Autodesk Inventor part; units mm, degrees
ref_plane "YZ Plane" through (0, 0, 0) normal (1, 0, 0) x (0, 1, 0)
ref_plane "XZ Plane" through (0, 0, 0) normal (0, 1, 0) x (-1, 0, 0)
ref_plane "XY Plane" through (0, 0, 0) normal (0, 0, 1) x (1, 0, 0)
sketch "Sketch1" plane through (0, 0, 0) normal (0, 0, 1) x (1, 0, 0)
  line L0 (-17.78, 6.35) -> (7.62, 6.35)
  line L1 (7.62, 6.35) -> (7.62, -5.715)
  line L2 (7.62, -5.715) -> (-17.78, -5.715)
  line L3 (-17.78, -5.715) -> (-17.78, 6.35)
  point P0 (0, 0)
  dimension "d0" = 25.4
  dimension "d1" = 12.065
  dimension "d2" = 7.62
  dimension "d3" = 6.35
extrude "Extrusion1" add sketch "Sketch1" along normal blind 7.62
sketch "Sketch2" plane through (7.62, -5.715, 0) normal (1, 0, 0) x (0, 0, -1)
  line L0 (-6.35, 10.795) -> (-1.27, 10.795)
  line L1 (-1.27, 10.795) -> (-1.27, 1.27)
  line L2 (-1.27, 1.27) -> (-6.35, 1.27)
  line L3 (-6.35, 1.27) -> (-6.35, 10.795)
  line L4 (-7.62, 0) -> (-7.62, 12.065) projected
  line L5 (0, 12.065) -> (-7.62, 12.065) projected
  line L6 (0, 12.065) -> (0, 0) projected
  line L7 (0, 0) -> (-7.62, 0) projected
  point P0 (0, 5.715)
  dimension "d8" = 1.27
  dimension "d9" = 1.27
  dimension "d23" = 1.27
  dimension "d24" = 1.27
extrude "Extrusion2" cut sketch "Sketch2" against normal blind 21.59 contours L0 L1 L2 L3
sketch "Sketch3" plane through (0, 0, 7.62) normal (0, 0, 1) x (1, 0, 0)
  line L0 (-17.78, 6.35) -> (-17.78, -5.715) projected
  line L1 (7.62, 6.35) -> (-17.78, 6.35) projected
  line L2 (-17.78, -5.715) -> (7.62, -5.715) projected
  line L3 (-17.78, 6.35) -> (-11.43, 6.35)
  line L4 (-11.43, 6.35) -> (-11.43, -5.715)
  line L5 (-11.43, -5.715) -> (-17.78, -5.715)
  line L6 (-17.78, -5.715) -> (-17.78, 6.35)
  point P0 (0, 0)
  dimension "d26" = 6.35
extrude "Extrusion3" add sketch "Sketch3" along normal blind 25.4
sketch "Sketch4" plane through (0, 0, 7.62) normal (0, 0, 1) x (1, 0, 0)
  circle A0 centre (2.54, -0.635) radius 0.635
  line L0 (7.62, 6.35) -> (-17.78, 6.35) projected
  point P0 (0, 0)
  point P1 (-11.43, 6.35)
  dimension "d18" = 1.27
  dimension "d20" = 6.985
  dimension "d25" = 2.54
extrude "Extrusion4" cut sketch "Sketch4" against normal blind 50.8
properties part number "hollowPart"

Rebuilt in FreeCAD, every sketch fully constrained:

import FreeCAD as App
import Part
import Sketcher
Q = App.Units.Quantity


def add_polygon(sketch, points):
    """Adds a closed chain of lines whose ends are joined by coincident constraints."""
    first, n = sketch.GeometryCount, len(points)
    for a, b in zip(points, points[1:] + points[:1]):
        sketch.addGeometry(Part.LineSegment(App.Vector(*a, 0), App.Vector(*b, 0)), False)
    for i in range(n):
        sketch.addConstraint(Sketcher.Constraint("Coincident", first + i, 2, first + (i + 1) % n, 1))

doc = App.newDocument("Part")
params = doc.addObject("Spreadsheet::Sheet", "Params")
for row, (alias, value) in enumerate([
    ("sketch1_width", "1 in"),
    ("sketch1_height", "0.475 in"),
    ("pad1_length", "0.3 in"),
    ("sketch2_height", "0.2 in"),
    ("sketch2_width", "0.375 in"),
    ("pocket1_length", "0.85 in"),
    ("sketch3_width", "0.25 in"),
    ("sketch3_height", "0.475 in"),
    ("pad2_length", "1 in"),
    ("sketch4_diameter", "0.05 in"),
    ("pocket2_length", "2 in"),
], start=1):
    params.set(f"A{row}", alias)
    params.set(f"B{row}", "=" + value)
    params.setAlias(f"B{row}", alias)

body = doc.addObject("PartDesign::Body", "Body")

sketch1 = body.newObject("Sketcher::SketchObject", "Sketch")
sketch1.AttachmentSupport = (doc.getObject("XY_Plane"), [""])
sketch1.MapMode = "FlatFace"
add_polygon(sketch1, [(8, 6), (-18, 6), (-18, -6), (8, -6)])
sketch1.addConstraint(Sketcher.Constraint("Horizontal", 0))
sketch1.addConstraint(Sketcher.Constraint("Vertical", 1))
sketch1.addConstraint(Sketcher.Constraint("Horizontal", 2))
sketch1.addConstraint(Sketcher.Constraint("Vertical", 3))
sketch1.addConstraint(Sketcher.Constraint("DistanceX", 0, 2, 0, 1, Q("1 in")))
sketch1.addConstraint(Sketcher.Constraint("DistanceX", -1, 1, 2, 2, Q("0.3 in")))
sketch1.addConstraint(Sketcher.Constraint("DistanceY", 1, 2, 1, 1, Q("0.475 in")))
sketch1.addConstraint(Sketcher.Constraint("DistanceY", -1, 1, 0, 2, Q("0.25 in")))
sketch1.setExpression("Constraints[8]", "Params.sketch1_width")
sketch1.setExpression("Constraints[10]", "Params.sketch1_height")
pad1 = body.newObject("PartDesign::Pad", "Pad")
pad1.Profile = sketch1
pad1.setExpression("Length", "Params.pad1_length")

sketch2 = body.newObject("Sketcher::SketchObject", "Sketch001")
sketch2.AttachmentSupport = (doc.getObject("YZ_Plane"), [""])
sketch2.MapMode = "FlatFace"
sketch2.AttachmentOffset = App.Placement(App.Vector(0, 0, 0.3 * 25.4), App.Rotation())
add_polygon(sketch2, [(5, 1), (5, 6), (-4, 6), (-4, 1)])
sketch2.addConstraint(Sketcher.Constraint("Vertical", 0))
sketch2.addConstraint(Sketcher.Constraint("Horizontal", 1))
sketch2.addConstraint(Sketcher.Constraint("Vertical", 2))
sketch2.addConstraint(Sketcher.Constraint("Horizontal", 3))
sketch2.addConstraint(Sketcher.Constraint("DistanceY", -1, 1, 2, 2, Q("0.05 in")))
sketch2.addConstraint(Sketcher.Constraint("DistanceY", 0, 1, 0, 2, Q("0.2 in")))
sketch2.addConstraint(Sketcher.Constraint("DistanceX", -1, 1, 0, 2, Q("0.2 in")))
sketch2.addConstraint(Sketcher.Constraint("DistanceX", 1, 2, 1, 1, Q("0.375 in")))
sketch2.setExpression("Constraints[9]", "Params.sketch2_height")
sketch2.setExpression("Constraints[11]", "Params.sketch2_width")
pocket1 = body.newObject("PartDesign::Pocket", "Pocket")
pocket1.Profile = sketch2
pocket1.setExpression("Length", "Params.pocket1_length")

sketch3 = body.newObject("Sketcher::SketchObject", "Sketch002")
sketch3.AttachmentSupport = (doc.getObject("XY_Plane"), [""])
sketch3.MapMode = "FlatFace"
sketch3.AttachmentOffset = App.Placement(App.Vector(0, 0, 0.3 * 25.4), App.Rotation())
add_polygon(sketch3, [(-11, 6), (-18, 6), (-18, -6), (-11, -6)])
sketch3.addConstraint(Sketcher.Constraint("Horizontal", 0))
sketch3.addConstraint(Sketcher.Constraint("Vertical", 1))
sketch3.addConstraint(Sketcher.Constraint("Horizontal", 2))
sketch3.addConstraint(Sketcher.Constraint("Vertical", 3))
sketch3.addConstraint(Sketcher.Constraint("DistanceX", 0, 2, 0, 1, Q("0.25 in")))
sketch3.addConstraint(Sketcher.Constraint("DistanceY", -1, 1, 0, 2, Q("0.25 in")))
sketch3.addConstraint(Sketcher.Constraint("DistanceX", 0, 2, -1, 1, Q("0.7 in")))
sketch3.addConstraint(Sketcher.Constraint("DistanceY", 1, 2, 1, 1, Q("0.475 in")))
sketch3.setExpression("Constraints[8]", "Params.sketch3_width")
sketch3.setExpression("Constraints[11]", "Params.sketch3_height")
pad2 = body.newObject("PartDesign::Pad", "Pad001")
pad2.Profile = sketch3
pad2.setExpression("Length", "Params.pad2_length")

sketch4 = body.newObject("Sketcher::SketchObject", "Sketch003")
sketch4.AttachmentSupport = (doc.getObject("XY_Plane"), [""])
sketch4.MapMode = "FlatFace"
sketch4.AttachmentOffset = App.Placement(App.Vector(0, 0, 0.3 * 25.4), App.Rotation())
sketch4.addGeometry(Part.Circle(App.Vector(2.5, -0.6, 0), App.Vector(0, 0, 1), 0.6), False)
sketch4.addConstraint(Sketcher.Constraint("Diameter", 0, Q("0.05 in")))
sketch4.addConstraint(Sketcher.Constraint("DistanceX", -1, 1, 0, 3, Q("0.1 in")))
sketch4.addConstraint(Sketcher.Constraint("DistanceY", 0, 3, -1, 1, Q("0.025 in")))
sketch4.setExpression("Constraints[0]", "Params.sketch4_diameter")
pocket2 = body.newObject("PartDesign::Pocket", "Pocket001")
pocket2.Profile = sketch4
pocket2.setExpression("Length", "Params.pocket2_length")

doc.recompute()
